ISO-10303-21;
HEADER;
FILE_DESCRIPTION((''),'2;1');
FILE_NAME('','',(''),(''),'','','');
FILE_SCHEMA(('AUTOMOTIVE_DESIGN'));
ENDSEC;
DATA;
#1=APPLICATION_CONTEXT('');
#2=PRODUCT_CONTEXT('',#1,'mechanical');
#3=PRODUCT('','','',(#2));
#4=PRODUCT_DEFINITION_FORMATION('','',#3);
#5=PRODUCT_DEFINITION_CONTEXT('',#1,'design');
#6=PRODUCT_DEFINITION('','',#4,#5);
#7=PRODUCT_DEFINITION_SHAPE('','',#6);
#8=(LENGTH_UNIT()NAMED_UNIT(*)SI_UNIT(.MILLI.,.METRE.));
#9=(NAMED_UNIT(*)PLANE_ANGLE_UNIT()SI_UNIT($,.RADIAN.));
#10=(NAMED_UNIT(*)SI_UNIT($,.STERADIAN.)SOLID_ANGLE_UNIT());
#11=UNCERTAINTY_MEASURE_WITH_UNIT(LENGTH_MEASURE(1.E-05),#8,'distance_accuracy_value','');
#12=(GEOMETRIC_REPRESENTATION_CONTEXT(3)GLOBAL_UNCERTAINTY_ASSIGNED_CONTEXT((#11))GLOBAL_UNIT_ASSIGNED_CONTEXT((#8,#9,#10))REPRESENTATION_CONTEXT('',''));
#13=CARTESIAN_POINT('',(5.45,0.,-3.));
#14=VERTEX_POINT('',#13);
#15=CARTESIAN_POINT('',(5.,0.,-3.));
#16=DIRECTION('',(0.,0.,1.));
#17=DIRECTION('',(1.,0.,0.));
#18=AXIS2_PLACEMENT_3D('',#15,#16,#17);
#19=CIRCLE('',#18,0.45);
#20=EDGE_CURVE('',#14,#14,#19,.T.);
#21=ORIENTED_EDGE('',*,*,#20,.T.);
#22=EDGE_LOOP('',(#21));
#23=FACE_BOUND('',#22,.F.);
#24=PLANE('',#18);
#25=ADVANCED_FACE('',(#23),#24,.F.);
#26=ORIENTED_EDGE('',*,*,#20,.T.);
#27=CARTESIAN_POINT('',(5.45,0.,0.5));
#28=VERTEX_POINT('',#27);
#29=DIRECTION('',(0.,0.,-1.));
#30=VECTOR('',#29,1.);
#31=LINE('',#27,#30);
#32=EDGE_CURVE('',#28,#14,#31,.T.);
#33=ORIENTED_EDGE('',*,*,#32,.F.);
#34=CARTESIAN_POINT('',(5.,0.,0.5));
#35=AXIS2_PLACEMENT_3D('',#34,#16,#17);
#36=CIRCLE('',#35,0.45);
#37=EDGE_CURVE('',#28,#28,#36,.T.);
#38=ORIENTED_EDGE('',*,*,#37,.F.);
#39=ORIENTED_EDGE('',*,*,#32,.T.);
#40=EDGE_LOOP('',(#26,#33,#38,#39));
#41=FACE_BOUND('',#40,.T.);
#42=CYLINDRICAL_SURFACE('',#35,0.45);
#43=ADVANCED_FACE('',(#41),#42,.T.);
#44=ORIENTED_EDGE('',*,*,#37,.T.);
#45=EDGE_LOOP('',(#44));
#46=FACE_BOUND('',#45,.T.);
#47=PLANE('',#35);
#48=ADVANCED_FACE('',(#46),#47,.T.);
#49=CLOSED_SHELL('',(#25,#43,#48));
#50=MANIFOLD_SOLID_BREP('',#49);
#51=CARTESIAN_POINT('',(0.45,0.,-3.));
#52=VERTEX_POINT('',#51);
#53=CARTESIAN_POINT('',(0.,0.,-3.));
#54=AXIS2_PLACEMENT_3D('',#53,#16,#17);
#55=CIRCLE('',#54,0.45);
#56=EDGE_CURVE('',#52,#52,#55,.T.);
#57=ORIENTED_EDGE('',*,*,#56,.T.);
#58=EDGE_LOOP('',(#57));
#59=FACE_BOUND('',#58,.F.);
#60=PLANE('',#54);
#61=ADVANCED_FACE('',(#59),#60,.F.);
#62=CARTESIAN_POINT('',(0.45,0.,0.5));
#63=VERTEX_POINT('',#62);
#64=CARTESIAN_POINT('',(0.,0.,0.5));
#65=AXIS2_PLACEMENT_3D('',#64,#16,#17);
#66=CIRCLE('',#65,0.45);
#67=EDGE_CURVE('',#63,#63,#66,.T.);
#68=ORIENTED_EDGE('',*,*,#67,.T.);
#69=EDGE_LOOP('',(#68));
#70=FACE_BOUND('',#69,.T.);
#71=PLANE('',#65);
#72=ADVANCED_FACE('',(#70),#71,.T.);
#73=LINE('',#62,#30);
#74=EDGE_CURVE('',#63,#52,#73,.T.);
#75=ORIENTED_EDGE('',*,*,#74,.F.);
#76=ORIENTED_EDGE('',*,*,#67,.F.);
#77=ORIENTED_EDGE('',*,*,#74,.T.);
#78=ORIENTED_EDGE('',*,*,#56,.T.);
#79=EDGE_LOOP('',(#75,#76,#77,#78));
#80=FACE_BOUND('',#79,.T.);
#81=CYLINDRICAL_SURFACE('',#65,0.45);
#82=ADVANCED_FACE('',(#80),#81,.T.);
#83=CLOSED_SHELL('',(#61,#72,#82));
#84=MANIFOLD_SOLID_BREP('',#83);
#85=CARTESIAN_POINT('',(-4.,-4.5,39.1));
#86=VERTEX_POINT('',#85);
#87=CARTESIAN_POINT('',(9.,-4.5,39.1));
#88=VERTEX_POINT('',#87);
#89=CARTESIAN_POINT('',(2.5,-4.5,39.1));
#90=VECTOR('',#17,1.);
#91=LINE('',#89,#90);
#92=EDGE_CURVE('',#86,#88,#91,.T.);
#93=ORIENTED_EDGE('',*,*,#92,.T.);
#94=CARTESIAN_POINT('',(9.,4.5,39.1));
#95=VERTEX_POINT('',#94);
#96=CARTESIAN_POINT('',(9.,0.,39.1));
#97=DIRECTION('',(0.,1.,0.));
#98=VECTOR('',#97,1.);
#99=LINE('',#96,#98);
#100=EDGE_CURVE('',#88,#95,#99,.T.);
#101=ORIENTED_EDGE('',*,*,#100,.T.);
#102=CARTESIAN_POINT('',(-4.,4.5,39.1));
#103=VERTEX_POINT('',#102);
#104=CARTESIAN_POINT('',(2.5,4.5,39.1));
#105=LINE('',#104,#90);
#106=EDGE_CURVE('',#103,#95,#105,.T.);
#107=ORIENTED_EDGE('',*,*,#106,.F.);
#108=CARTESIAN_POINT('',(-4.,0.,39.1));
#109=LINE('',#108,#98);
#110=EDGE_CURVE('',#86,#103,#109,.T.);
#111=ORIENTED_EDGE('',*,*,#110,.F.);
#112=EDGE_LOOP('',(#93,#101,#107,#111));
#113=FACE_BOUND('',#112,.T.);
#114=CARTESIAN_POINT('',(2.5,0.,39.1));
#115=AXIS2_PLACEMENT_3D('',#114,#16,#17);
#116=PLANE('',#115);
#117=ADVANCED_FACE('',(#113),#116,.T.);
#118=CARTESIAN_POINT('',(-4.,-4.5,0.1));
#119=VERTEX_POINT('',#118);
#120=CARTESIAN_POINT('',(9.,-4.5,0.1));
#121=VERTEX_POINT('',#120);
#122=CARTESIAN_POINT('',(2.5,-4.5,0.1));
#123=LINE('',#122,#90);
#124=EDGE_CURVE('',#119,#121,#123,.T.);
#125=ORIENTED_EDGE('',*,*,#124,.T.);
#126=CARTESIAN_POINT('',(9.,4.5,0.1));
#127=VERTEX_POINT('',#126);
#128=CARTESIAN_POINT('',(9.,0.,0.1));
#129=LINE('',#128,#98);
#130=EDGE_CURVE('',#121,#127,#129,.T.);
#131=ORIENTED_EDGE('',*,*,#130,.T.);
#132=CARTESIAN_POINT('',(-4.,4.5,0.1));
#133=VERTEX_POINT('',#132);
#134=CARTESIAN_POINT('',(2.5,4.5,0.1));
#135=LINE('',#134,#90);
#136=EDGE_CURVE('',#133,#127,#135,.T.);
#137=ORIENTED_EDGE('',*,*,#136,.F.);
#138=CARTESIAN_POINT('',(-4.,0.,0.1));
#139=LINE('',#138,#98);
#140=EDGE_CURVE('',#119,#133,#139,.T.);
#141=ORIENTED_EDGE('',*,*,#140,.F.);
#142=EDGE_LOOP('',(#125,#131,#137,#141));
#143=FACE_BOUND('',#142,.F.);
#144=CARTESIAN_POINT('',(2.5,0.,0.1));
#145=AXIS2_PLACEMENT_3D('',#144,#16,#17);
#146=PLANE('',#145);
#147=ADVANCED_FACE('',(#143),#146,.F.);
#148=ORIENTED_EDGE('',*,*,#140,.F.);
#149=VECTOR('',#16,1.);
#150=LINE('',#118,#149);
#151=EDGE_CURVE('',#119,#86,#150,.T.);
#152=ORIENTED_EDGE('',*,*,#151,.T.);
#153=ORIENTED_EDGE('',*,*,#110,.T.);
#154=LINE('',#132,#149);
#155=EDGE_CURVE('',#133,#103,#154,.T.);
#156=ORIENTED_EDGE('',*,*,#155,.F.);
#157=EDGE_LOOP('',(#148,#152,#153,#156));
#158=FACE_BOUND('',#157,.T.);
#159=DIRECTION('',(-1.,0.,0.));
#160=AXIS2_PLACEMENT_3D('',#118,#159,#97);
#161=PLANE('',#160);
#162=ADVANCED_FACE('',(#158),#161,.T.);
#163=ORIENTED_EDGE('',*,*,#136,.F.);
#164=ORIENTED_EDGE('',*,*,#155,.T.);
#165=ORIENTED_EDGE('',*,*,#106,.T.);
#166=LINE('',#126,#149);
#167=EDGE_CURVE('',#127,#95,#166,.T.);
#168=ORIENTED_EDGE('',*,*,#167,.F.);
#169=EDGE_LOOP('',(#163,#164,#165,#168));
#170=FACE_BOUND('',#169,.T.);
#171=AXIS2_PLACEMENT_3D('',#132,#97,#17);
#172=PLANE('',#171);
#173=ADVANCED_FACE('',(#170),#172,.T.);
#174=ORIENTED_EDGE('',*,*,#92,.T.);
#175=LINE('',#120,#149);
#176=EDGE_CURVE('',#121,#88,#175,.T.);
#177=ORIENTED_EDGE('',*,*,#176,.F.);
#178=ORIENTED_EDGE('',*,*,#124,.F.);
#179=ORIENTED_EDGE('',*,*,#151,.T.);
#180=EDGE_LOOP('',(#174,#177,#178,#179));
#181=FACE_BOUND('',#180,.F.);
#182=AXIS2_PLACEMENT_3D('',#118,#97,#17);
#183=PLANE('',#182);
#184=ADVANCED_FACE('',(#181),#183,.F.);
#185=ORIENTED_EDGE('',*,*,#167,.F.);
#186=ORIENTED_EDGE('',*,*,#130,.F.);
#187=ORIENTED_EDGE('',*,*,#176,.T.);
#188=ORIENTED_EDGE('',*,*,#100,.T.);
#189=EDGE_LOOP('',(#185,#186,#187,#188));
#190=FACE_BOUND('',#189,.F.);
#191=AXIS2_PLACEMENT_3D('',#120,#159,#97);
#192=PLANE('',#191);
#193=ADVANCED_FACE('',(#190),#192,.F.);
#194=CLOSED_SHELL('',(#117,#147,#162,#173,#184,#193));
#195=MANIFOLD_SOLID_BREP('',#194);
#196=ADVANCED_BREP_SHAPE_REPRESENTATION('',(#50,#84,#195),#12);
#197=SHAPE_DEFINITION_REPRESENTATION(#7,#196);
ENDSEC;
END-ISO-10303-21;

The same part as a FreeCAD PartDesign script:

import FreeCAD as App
import Part
import Sketcher
Q = App.Units.Quantity


def add_polygon(sketch, points):
    """Adds a closed chain of lines whose ends are joined by coincident constraints."""
    first, n = sketch.GeometryCount, len(points)
    for a, b in zip(points, points[1:] + points[:1]):
        sketch.addGeometry(Part.LineSegment(App.Vector(*a, 0), App.Vector(*b, 0)), False)
    for i in range(n):
        sketch.addConstraint(Sketcher.Constraint("Coincident", first + i, 2, first + (i + 1) % n, 1))

doc = App.newDocument("Part")
body = doc.addObject("PartDesign::Body", "Body")

# Sketch on XY plane
sketch1 = body.newObject("Sketcher::SketchObject", "Sketch")
sketch1.AttachmentSupport = (doc.getObject("XY_Plane"), [""])
sketch1.MapMode = "FlatFace"
sketch1.AttachmentOffset = App.Placement(App.Vector(0, 0, 0.1), App.Rotation())
add_polygon(sketch1, [(-4, 4), (-4, -4), (9, -4), (9, 4)])  # lines 0-3
sketch1.addConstraint([
    Sketcher.Constraint("Vertical", 0),
    Sketcher.Constraint("Horizontal", 1),
    Sketcher.Constraint("Vertical", 2),
    Sketcher.Constraint("Horizontal", 3),
    Sketcher.Constraint("DistanceX", 1, 1, 1, 2, Q("13 mm")),
    Sketcher.Constraint("DistanceY", 0, 2, 0, 1, Q("9 mm")),
    Sketcher.Constraint("DistanceX", 0, 2, -1, 1, Q("4 mm")),
    Sketcher.Constraint("DistanceY", 0, 2, -1, 1, Q("4.5 mm")),
])
pad1 = body.newObject("PartDesign::Pad", "Pad")
pad1.Profile = sketch1
pad1.Length = 39
body2 = doc.addObject("PartDesign::Body", "Body001")
body2.AllowCompound = True

# Sketch on XY plane
sketch2 = body2.newObject("Sketcher::SketchObject", "Sketch001")
sketch2.AttachmentSupport = (doc.getObject("XY_Plane001"), [""])
sketch2.MapMode = "FlatFace"
sketch2.AttachmentOffset = App.Placement(App.Vector(0, 0, 0.5), App.Rotation())
sketch2.addGeometry([
    Part.Circle(App.Vector(0, 0, 0), App.Vector(0, 0, 1), 0.45),
    Part.Circle(App.Vector(5, 0, 0), App.Vector(0, 0, 1), 0.45),
], False)
sketch2.addConstraint([
    Sketcher.Constraint("Coincident", 0, 3, -1, 1),
    Sketcher.Constraint("Equal", 0, 1),
    Sketcher.Constraint("PointOnObject", 1, 3, -1),
    Sketcher.Constraint("Diameter", 0, Q("0.9 mm")),
    Sketcher.Constraint("DistanceX", -1, 1, 1, 3, Q("5 mm")),
])
pad2 = body2.newObject("PartDesign::Pad", "Pad001")
pad2.Profile = sketch2
pad2.Length = 3.5
pad2.Reversed = True

doc.recompute()
